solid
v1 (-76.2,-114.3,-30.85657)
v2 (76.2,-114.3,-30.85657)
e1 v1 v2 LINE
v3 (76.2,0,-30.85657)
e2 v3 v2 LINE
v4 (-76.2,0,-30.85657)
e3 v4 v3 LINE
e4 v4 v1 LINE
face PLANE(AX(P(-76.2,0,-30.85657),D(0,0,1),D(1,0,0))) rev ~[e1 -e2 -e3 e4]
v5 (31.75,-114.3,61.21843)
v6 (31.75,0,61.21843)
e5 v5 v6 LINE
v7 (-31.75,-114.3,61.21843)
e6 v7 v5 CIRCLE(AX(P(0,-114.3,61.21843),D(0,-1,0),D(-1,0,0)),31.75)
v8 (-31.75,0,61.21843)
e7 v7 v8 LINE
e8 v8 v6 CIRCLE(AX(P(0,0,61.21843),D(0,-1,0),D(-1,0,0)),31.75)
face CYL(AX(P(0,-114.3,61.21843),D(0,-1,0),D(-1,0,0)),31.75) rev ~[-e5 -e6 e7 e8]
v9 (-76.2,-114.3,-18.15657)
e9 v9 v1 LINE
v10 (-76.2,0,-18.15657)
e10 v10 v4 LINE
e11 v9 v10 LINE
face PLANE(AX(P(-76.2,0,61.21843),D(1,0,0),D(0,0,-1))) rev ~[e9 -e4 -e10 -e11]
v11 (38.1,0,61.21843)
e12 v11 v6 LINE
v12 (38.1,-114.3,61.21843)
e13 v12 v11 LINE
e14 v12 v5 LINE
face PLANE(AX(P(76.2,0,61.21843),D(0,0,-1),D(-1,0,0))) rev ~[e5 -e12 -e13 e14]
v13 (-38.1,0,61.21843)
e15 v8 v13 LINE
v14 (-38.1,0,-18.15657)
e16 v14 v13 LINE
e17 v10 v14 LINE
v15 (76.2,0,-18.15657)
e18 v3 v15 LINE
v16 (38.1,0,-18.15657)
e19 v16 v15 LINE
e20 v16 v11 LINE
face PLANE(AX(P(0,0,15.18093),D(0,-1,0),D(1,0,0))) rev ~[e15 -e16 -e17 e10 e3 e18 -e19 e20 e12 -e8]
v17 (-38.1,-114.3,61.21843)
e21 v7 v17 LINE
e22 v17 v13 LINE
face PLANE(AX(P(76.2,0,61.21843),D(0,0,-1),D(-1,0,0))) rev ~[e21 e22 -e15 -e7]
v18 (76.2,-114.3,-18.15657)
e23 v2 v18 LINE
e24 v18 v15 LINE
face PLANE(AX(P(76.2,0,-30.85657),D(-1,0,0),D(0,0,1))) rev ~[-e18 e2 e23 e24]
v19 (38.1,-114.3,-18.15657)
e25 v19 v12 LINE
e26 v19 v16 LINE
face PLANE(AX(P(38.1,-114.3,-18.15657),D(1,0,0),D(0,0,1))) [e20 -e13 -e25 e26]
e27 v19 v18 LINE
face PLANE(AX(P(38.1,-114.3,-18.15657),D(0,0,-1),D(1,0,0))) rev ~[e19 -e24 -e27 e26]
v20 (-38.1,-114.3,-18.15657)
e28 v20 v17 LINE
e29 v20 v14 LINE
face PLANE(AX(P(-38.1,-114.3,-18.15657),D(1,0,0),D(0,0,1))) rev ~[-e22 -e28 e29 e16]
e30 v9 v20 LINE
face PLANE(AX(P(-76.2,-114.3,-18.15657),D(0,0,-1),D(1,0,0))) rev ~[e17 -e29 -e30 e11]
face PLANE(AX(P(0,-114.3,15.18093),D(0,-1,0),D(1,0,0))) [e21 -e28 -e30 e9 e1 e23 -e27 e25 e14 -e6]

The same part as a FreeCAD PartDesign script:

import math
import FreeCAD as App
import Part
import Sketcher
from FreeCAD import Vector
Q = App.Units.Quantity

doc = App.newDocument("Part")
params = doc.addObject("Spreadsheet::Sheet", "Params")
for row, (alias, value) in enumerate([
    ("sketch1_width", "6 in"),
    ("sketch1_height", "3.625 in"),
    ("pad1_length", "4.5 in"),
    ("sketch2_width", "1.5 in"),
    ("sketch2_height", "3.125 in"),
    ("sketch3_radius", "1.25 in"),
], start=1):
    params.set(f"A{row}", alias)
    params.set(f"B{row}", "=" + value)
    params.setAlias(f"B{row}", alias)

body = doc.addObject("PartDesign::Body", "Body")

sketch1 = body.newObject("Sketcher::SketchObject", "Sketch")
sketch1.AttachmentSupport = (doc.getObject("XZ_Plane"), [""])
sketch1.MapMode = "FlatFace"
sketch1.addGeometry([
    Part.LineSegment(Vector(-76.2, -30.85657, 0), Vector(76.2, -30.85657, 0)),
    Part.LineSegment(Vector(76.2, -30.85657, 0), Vector(76.2, 61.21843, 0)),
    Part.LineSegment(Vector(76.2, 61.21843, 0), Vector(-76.2, 61.21843, 0)),
    Part.LineSegment(Vector(-76.2, 61.21843, 0), Vector(-76.2, -30.85657, 0)),
], False)
sketch1.addConstraint([
    Sketcher.Constraint("Coincident", 0, 2, 1, 1),
    Sketcher.Constraint("Coincident", 1, 2, 2, 1),
    Sketcher.Constraint("Coincident", 2, 2, 3, 1),
    Sketcher.Constraint("Coincident", 3, 2, 0, 1),
    Sketcher.Constraint("Horizontal", 0),
    Sketcher.Constraint("Vertical", 1),
    Sketcher.Constraint("Horizontal", 2),
    Sketcher.Constraint("Vertical", 3),
    Sketcher.Constraint("DistanceX", 0, 1, 0, 2, Q("6 in")),
    Sketcher.Constraint("DistanceX", -1, 1, 0, 2, Q("3 in")),
    Sketcher.Constraint("DistanceY", 1, 1, 1, 2, Q("3.625 in")),
    Sketcher.Constraint("DistanceY", 0, 2, -1, 1, Q("30.85657 mm")),
])
sketch1.setExpression("Constraints[8]", "Params.sketch1_width")
sketch1.setExpression("Constraints[10]", "Params.sketch1_height")
pad1 = body.newObject("PartDesign::Pad", "Pad")
pad1.Profile = sketch1
pad1.setExpression("Length", "Params.pad1_length")

sketch2 = body.newObject("Sketcher::SketchObject", "Sketch001")
sketch2.AttachmentSupport = (doc.getObject("XZ_Plane"), [""])
sketch2.MapMode = "FlatFace"
sketch2.AttachmentOffset = App.Placement(Vector(0, 0, 4.5 * 25.4), App.Rotation())
sketch2.addGeometry([
    Part.LineSegment(Vector(-76.2, 61.21843, 0), Vector(-76.2, -18.15657, 0)),
    Part.LineSegment(Vector(-76.2, -18.15657, 0), Vector(-38.1, -18.15657, 0)),
    Part.LineSegment(Vector(-38.1, -18.15657, 0), Vector(-38.1, 61.21843, 0)),
    Part.LineSegment(Vector(-38.1, 61.21843, 0), Vector(-76.2, 61.21843, 0)),
    Part.LineSegment(Vector(38.1, 61.21843, 0), Vector(38.1, -18.15657, 0)),
    Part.LineSegment(Vector(38.1, -18.15657, 0), Vector(76.2, -18.15657, 0)),
    Part.LineSegment(Vector(76.2, -18.15657, 0), Vector(76.2, 61.21843, 0)),
    Part.LineSegment(Vector(76.2, 61.21843, 0), Vector(38.1, 61.21843, 0)),
], False)
sketch2.addConstraint([
    Sketcher.Constraint("Coincident", 0, 2, 1, 1),
    Sketcher.Constraint("Coincident", 1, 2, 2, 1),
    Sketcher.Constraint("Coincident", 2, 2, 3, 1),
    Sketcher.Constraint("Coincident", 3, 2, 0, 1),
    Sketcher.Constraint("Coincident", 4, 2, 5, 1),
    Sketcher.Constraint("Coincident", 5, 2, 6, 1),
    Sketcher.Constraint("Coincident", 6, 2, 7, 1),
    Sketcher.Constraint("Coincident", 7, 2, 4, 1),
    Sketcher.Constraint("Vertical", 0),
    Sketcher.Constraint("Horizontal", 1),
    Sketcher.Constraint("Vertical", 2),
    Sketcher.Constraint("Horizontal", 3),
    Sketcher.Constraint("Vertical", 4),
    Sketcher.Constraint("Horizontal", 5),
    Sketcher.Constraint("Vertical", 6),
    Sketcher.Constraint("Horizontal", 7),
    Sketcher.Constraint("Symmetric", 1, 2, 4, 2, -2),
    Sketcher.Constraint("Symmetric", 3, 2, 6, 2, -2),
    Sketcher.Constraint("DistanceX", 1, 1, 1, 2, Q("1.5 in")),
    Sketcher.Constraint("DistanceX", 0, 2, -1, 1, Q("3 in")),
    Sketcher.Constraint("DistanceY", 0, 2, 0, 1, Q("3.125 in")),
    Sketcher.Constraint("DistanceY", 0, 2, -1, 1, Q("18.15657 mm")),
])
sketch2.setExpression("Constraints[18]", "Params.sketch2_width")
sketch2.setExpression("Constraints[20]", "Params.sketch2_height")
pocket1 = body.newObject("PartDesign::Pocket", "Pocket")
pocket1.Profile = sketch2
pocket1.Type = "ThroughAll"

sketch3 = body.newObject("Sketcher::SketchObject", "Sketch002")
sketch3.AttachmentSupport = (doc.getObject("XZ_Plane"), [""])
sketch3.MapMode = "FlatFace"
sketch3.AttachmentOffset = App.Placement(Vector(0, 0, 4.5 * 25.4), App.Rotation())
sketch3.addGeometry([
    Part.LineSegment(Vector(31.75, 61.21843, 0), Vector(-31.75, 61.21843, 0)),
    Part.ArcOfCircle(Part.Circle(Vector(0, 61.21843, 0), Vector(0, 0, 1), 31.75), math.radians(180), math.radians(360)),
], False)
sketch3.addConstraint([
    Sketcher.Constraint("Coincident", 0, 1, 1, 2),
    Sketcher.Constraint("Coincident", 1, 1, 0, 2),
    Sketcher.Constraint("Horizontal", 0),
    Sketcher.Constraint("PointOnObject", 1, 3, -2),
    Sketcher.Constraint("Horizontal", 1, 3, 0, 1),
    Sketcher.Constraint("Radius", 1, Q("1.25 in")),
    Sketcher.Constraint("DistanceY", -1, 1, 1, 3, Q("61.21843 mm")),
])
sketch3.setExpression("Constraints[5]", "Params.sketch3_radius")
pocket2 = body.newObject("PartDesign::Pocket", "Pocket001")
pocket2.Profile = sketch3
pocket2.Type = "ThroughAll"

doc.recompute()
